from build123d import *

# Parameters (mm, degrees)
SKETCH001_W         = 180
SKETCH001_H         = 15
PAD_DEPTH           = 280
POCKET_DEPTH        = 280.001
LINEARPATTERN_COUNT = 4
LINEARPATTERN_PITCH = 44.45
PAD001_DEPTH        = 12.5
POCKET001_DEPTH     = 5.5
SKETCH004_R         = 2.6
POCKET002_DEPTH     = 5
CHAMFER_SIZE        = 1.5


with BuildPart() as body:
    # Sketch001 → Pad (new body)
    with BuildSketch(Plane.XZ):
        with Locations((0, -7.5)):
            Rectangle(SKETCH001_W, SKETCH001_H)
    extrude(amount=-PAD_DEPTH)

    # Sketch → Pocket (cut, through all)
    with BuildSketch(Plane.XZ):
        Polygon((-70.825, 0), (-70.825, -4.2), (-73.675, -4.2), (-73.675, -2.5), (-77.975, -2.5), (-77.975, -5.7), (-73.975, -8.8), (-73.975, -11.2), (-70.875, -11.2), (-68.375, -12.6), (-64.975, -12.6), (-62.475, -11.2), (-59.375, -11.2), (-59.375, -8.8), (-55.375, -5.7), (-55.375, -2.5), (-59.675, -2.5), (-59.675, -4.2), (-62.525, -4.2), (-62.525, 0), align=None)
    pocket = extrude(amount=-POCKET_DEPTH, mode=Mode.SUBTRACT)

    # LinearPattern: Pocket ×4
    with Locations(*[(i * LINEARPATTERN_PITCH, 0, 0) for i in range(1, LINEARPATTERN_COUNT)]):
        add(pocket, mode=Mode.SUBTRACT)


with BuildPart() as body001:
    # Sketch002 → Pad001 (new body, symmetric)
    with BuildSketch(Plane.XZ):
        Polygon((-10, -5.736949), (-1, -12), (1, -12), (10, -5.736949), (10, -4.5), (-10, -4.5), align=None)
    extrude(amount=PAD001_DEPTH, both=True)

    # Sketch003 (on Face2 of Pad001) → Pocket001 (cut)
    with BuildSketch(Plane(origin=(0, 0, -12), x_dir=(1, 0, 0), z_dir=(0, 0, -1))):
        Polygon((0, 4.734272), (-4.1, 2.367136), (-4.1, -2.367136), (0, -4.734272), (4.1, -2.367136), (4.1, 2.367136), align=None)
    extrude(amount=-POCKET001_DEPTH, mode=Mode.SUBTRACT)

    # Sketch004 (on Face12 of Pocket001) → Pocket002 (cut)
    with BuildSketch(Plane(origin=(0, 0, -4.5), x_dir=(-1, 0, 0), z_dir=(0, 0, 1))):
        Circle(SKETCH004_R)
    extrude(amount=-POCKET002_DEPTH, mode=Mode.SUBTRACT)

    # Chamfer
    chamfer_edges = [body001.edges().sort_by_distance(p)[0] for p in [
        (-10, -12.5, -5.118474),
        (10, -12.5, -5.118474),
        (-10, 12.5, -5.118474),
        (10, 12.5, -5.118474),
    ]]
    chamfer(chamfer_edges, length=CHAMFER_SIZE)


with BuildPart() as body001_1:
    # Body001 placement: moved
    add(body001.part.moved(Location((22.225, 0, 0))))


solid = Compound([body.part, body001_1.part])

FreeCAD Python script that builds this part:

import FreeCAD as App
import Part
import Sketcher
Q = App.Units.Quantity


def edges_at(feature, points):
    """Names of the edges that pass closest to the given points."""
    edges = feature.Shape.Edges
    near = lambda p: min(range(len(edges)), key=lambda i: edges[i].distToShape(Part.Vertex(*p))[0])
    return sorted({f"Edge{near(p) + 1}" for p in points})


def add_polygon(sketch, points):
    """Adds a closed chain of lines whose ends are joined by coincident constraints."""
    first, n = sketch.GeometryCount, len(points)
    for a, b in zip(points, points[1:] + points[:1]):
        sketch.addGeometry(Part.LineSegment(App.Vector(*a, 0), App.Vector(*b, 0)), False)
    for i in range(n):
        sketch.addConstraint(Sketcher.Constraint("Coincident", first + i, 2, first + (i + 1) % n, 1))

doc = App.newDocument("Part")
body = doc.addObject("PartDesign::Body", "Body")

# Sketch on XZ plane
sketch1 = body.newObject("Sketcher::SketchObject", "Sketch")
sketch1.AttachmentSupport = (doc.getObject("XZ_Plane"), [""])
sketch1.MapMode = "FlatFace"
add_polygon(sketch1, [(-90, 0), (-90, -15), (90, -15), (90, 0)])  # lines 0-3
sketch1.addConstraint([
    Sketcher.Constraint("Vertical", 0),
    Sketcher.Constraint("Horizontal", 1),
    Sketcher.Constraint("Vertical", 2),
    Sketcher.Constraint("Horizontal", 3),
    Sketcher.Constraint("Symmetric", 2, 2, 3, 2, -1, 1),
    Sketcher.Constraint("DistanceX", 1, 1, 1, 2, Q("180 mm")),
    Sketcher.Constraint("DistanceY", 0, 2, 0, 1, Q("15 mm")),
])
pad1 = body.newObject("PartDesign::Pad", "Pad")
pad1.Profile = sketch1
pad1.Length = 280
pad1.Reversed = True

# Sketch on XZ plane
sketch2 = body.newObject("Sketcher::SketchObject", "Sketch001")
sketch2.AttachmentSupport = (doc.getObject("XZ_Plane"), [""])
sketch2.MapMode = "FlatFace"
add_polygon(sketch2, [(-70.825, 0), (-70.825, -4.2), (-73.675, -4.2), (-73.675, -2.5), (-77.975, -2.5), (-77.975, -5.7), (-73.975, -8.8), (-73.975, -11.2), (-70.875, -11.2), (-68.375, -12.6), (-64.975, -12.6), (-62.475, -11.2), (-59.375, -11.2), (-59.375, -8.8), (-55.375, -5.7), (-55.375, -2.5), (-59.675, -2.5), (-59.675, -4.2), (-62.525, -4.2), (-62.525, 0)])  # lines 0-19
sketch2.addConstraint([
    Sketcher.Constraint("Vertical", 0),
    Sketcher.Constraint("Horizontal", 1),
    Sketcher.Constraint("Vertical", 2),
    Sketcher.Constraint("Horizontal", 3),
    Sketcher.Constraint("Vertical", 4),
    Sketcher.Constraint("Vertical", 6),
    Sketcher.Constraint("Horizontal", 7),
    Sketcher.Constraint("Horizontal", 9),
    Sketcher.Constraint("Horizontal", 11),
    Sketcher.Constraint("Vertical", 12),
    Sketcher.Constraint("Vertical", 14),
    Sketcher.Constraint("Horizontal", 15),
    Sketcher.Constraint("Vertical", 16),
    Sketcher.Constraint("Horizontal", 17),
    Sketcher.Constraint("Vertical", 18),
    Sketcher.Constraint("Horizontal", 19),
    Sketcher.Constraint("PointOnObject", 18, 2, -1),
    Sketcher.Constraint("Horizontal", 7, 2, 10, 2),
    Sketcher.Constraint("Horizontal", 5, 2, 12, 2),
    Sketcher.Constraint("Horizontal", 4, 2, 13, 2),
    Sketcher.Constraint("Horizontal", 3, 2, 14, 2),
    Sketcher.Constraint("Horizontal", 1, 2, 16, 2),
    Sketcher.Constraint("Equal", 7, 11),
    Sketcher.Constraint("Equal", 3, 15),
    Sketcher.Constraint("Equal", 1, 17),
    Sketcher.Constraint("Equal", 8, 10),
    Sketcher.Constraint("Equal", 5, 13),
    Sketcher.Constraint("DistanceX", 3, 2, 3, 1, Q("4.3 mm")),
    Sketcher.Constraint("DistanceX", 7, 1, 7, 2, Q("3.1 mm")),
    Sketcher.Constraint("DistanceX", 9, 1, 9, 2, Q("3.4 mm")),
    Sketcher.Constraint("DistanceX", 19, 2, 19, 1, Q("8.3 mm")),
    Sketcher.Constraint("DistanceY", 0, 2, 0, 1, Q("4.2 mm")),
    Sketcher.Constraint("DistanceY", 2, 1, 2, 2, Q("1.7 mm")),
    Sketcher.Constraint("DistanceY", 4, 2, 4, 1, Q("3.2 mm")),
    Sketcher.Constraint("DistanceY", 6, 2, 6, 1, Q("2.4 mm")),
    Sketcher.Constraint("DistanceX", 4, 2, 5, 2, Q("4 mm")),
    Sketcher.Constraint("DistanceY", 6, 2, 1, 2, Q("7 mm")),
    Sketcher.Constraint("DistanceX", 6, 2, 9, 2, Q("9 mm")),
    Sketcher.Constraint("DistanceY", 8, 2, -1, 1, Q("12.6 mm")),
    Sketcher.Constraint("DistanceX", 0, 2, -1, 1, Q("70.825 mm")),
])
pocket1 = body.newObject("PartDesign::Pocket", "Pocket")
pocket1.Profile = sketch2
pocket1.Type = "ThroughAll"
doc.recompute()

linearpattern = body.newObject("PartDesign::LinearPattern", "LinearPattern")
linearpattern.Originals = [pocket1]
linearpattern.Direction = (doc.getObject("X_Axis"), [""])
linearpattern.Mode = "offset"
linearpattern.Offset = 44.45
linearpattern.Occurrences = 4
body.Tip = linearpattern
body2 = doc.addObject("PartDesign::Body", "Body001")

# Sketch on XZ plane
sketch3 = body2.newObject("Sketcher::SketchObject", "Sketch002")
sketch3.AttachmentSupport = (doc.getObject("XZ_Plane001"), [""])
sketch3.MapMode = "FlatFace"
add_polygon(sketch3, [(-10, -5.736949), (-1, -12), (1, -12), (10, -5.736949), (10, -4.5), (-10, -4.5)])  # lines 0-5
sketch3.addConstraint([
    Sketcher.Constraint("Horizontal", 1),
    Sketcher.Constraint("Vertical", 3),
    Sketcher.Constraint("Horizontal", 4),
    Sketcher.Constraint("Vertical", 5),
    Sketcher.Constraint("Symmetric", 2, 2, 5, 2, -2),
    Sketcher.Constraint("Equal", 0, 2),
    Sketcher.Constraint("DistanceX", 1, 1, 1, 2, Q("2 mm")),
    Sketcher.Constraint("DistanceX", 4, 2, 4, 1, Q("20 mm")),
    Sketcher.Constraint("DistanceY", 0, 2, -1, 1, Q("12 mm")),
    Sketcher.Constraint("DistanceY", 3, 2, -1, 1, Q("4.5 mm")),
    Sketcher.Constraint("DistanceY", 3, 1, 3, 2, Q("1.236949 mm")),
])
pad2 = body2.newObject("PartDesign::Pad", "Pad001")
pad2.Profile = sketch3
pad2.Length = 25
pad2.Midplane = True

# Sketch on XY plane
sketch4 = body2.newObject("Sketcher::SketchObject", "Sketch003")
sketch4.AttachmentSupport = (doc.getObject("XY_Plane001"), [""])
sketch4.MapMode = "FlatFace"
sketch4.AttachmentOffset = App.Placement(App.Vector(0, 0, -12), App.Rotation())
add_polygon(sketch4, [(0, -4.734272), (-4.1, -2.367136), (-4.1, 2.367136), (0, 4.734272), (4.1, 2.367136), (4.1, -2.367136)])  # lines 0-5
sketch4.addConstraint([
    Sketcher.Constraint("Vertical", 1),
    Sketcher.Constraint("Vertical", 4),
    Sketcher.Constraint("Symmetric", 0, 2, 3, 2, -1, 1),
    Sketcher.Constraint("Symmetric", 2, 2, 5, 2, -1, 1),
    Sketcher.Constraint("PointOnObject", 2, 2, -2),
    Sketcher.Constraint("Parallel", 2, 5),
    Sketcher.Constraint("Horizontal", 1, 2, 3, 2),
    Sketcher.Constraint("Angle", 0, Q("150.000001 deg")),
    Sketcher.Constraint("DistanceX", 0, 2, -1, 1, Q("4.1 mm")),
    Sketcher.Constraint("DistanceY", 1, 1, 1, 2, Q("4.734272 mm")),
])
pocket2 = body2.newObject("PartDesign::Pocket", "Pocket001")
pocket2.Profile = sketch4
pocket2.Length = 5.5
pocket2.Reversed = True

# Sketch on XY plane
sketch5 = body2.newObject("Sketcher::SketchObject", "Sketch004")
sketch5.AttachmentSupport = (doc.getObject("XY_Plane001"), [""])
sketch5.MapMode = "FlatFace"
sketch5.AttachmentOffset = App.Placement(App.Vector(0, 0, -4.5), App.Rotation())
sketch5.addGeometry(Part.Circle(App.Vector(0, 0, 0), App.Vector(0, 0, 1), 2.6), False)
sketch5.addConstraint([
    Sketcher.Constraint("Coincident", 0, 3, -1, 1),
    Sketcher.Constraint("Diameter", 0, Q("5.2 mm")),
])
pocket3 = body2.newObject("PartDesign::Pocket", "Pocket002")
pocket3.Profile = sketch5
pocket3.Length = 5
doc.recompute()

chamfer = body2.newObject("PartDesign::Chamfer", "Chamfer")
chamfer.Base = (pocket3, edges_at(pocket3, [
    (-10, -12.5, -5.118),
    (10, -12.5, -5.118),
    (-10, 12.5, -5.118),
    (10, 12.5, -5.118),
]))
chamfer.Size = 1.5
body3 = doc.addObject("PartDesign::Body", "Body002")
doc.recompute()

body2.Placement = App.Placement(App.Vector(22.225, 0, 0), App.Rotation(App.Vector(0, 0, 1), 0))
boolean = body3.newObject("PartDesign::Boolean", "Boolean")
boolean.Type = "Fuse"
boolean.addObjects([body2])

doc.recompute()
